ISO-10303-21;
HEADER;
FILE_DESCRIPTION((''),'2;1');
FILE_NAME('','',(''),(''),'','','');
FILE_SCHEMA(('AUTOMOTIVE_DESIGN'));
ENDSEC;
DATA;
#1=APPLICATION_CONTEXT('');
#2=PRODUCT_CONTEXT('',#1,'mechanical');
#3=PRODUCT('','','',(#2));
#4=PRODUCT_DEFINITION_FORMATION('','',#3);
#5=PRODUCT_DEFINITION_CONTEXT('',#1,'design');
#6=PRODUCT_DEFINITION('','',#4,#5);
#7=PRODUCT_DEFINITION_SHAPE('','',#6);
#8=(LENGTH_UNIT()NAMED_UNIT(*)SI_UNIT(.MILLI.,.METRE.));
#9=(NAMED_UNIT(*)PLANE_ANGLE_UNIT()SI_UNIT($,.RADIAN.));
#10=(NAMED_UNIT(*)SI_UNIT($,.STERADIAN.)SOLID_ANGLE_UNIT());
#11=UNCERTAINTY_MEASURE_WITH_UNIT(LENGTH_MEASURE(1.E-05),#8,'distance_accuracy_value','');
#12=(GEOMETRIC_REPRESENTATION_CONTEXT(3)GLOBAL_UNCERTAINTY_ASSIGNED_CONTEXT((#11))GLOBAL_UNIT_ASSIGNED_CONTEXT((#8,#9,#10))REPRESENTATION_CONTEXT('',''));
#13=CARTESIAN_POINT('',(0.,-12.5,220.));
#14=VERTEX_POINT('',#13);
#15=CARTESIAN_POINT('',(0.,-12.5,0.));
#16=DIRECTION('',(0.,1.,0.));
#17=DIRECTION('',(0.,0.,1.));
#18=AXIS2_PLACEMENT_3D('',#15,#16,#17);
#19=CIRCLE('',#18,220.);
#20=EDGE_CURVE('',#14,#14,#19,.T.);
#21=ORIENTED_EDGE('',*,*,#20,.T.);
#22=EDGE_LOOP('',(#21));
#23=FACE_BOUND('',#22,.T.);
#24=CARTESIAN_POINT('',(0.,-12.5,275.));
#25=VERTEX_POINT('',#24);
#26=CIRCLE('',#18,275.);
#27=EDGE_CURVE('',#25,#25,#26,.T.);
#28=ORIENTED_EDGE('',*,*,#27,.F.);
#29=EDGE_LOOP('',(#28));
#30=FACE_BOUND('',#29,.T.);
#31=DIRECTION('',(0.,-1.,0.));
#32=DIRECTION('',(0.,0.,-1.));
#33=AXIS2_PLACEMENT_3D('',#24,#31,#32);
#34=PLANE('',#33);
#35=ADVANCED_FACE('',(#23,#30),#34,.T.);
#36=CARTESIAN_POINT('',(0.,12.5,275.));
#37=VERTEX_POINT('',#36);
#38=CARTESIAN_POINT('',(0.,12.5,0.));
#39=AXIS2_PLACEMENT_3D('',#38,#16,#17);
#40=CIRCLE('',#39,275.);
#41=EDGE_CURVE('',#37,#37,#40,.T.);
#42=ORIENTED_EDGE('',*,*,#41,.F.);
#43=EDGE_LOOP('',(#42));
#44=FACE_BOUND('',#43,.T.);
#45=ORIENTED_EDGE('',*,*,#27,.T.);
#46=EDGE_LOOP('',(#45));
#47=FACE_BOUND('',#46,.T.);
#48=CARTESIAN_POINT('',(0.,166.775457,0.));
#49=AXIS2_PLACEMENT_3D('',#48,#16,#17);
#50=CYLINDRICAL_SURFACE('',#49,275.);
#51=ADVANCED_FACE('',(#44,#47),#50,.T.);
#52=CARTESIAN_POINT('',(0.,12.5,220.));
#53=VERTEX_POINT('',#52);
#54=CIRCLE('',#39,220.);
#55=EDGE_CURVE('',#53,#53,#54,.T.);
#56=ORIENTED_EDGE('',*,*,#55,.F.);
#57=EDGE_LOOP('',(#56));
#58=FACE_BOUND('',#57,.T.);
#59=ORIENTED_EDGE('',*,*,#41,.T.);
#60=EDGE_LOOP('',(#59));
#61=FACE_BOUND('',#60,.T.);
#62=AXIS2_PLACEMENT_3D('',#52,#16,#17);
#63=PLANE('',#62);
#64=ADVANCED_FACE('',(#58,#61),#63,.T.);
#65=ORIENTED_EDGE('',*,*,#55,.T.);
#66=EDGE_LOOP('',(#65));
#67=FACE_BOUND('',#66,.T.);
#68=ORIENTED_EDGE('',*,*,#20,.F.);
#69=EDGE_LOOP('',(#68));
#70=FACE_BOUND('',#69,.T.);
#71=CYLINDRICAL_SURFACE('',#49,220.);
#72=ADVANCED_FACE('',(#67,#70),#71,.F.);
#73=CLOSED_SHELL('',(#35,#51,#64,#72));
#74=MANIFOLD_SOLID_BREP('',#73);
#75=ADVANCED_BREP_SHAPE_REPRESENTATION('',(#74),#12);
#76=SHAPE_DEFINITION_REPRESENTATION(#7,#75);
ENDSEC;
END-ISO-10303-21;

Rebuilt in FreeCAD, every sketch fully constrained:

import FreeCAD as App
import Part
import Sketcher
from FreeCAD import Vector
Q = App.Units.Quantity

doc = App.newDocument("Part")
body = doc.addObject("PartDesign::Body", "Body")

# Sketch on YZ plane
sketch1 = body.newObject("Sketcher::SketchObject", "Sketch")
sketch1.AttachmentSupport = (doc.getObject("YZ_Plane"), [""])
sketch1.MapMode = "FlatFace"
sketch1.addGeometry([
    Part.LineSegment(Vector(12.5, 275, 0), Vector(-12.5, 275, 0)),
    Part.LineSegment(Vector(-12.5, 275, 0), Vector(-12.5, 220, 0)),
    Part.LineSegment(Vector(-12.5, 220, 0), Vector(12.5, 220, 0)),
    Part.LineSegment(Vector(12.5, 220, 0), Vector(12.5, 275, 0)),
], False)
sketch1.addConstraint([
    Sketcher.Constraint("Coincident", 0, 2, 1, 1),
    Sketcher.Constraint("Coincident", 1, 2, 2, 1),
    Sketcher.Constraint("Coincident", 2, 2, 3, 1),
    Sketcher.Constraint("Coincident", 3, 2, 0, 1),
    Sketcher.Constraint("Horizontal", 0),
    Sketcher.Constraint("Vertical", 1),
    Sketcher.Constraint("Horizontal", 2),
    Sketcher.Constraint("Vertical", 3),
    Sketcher.Constraint("DistanceX", 0, 2, 0, 1, Q("25 mm")),
    Sketcher.Constraint("DistanceY", 1, 2, 1, 1, Q("55 mm")),
    Sketcher.Constraint("DistanceY", -1, 1, 0, 2, Q("275 mm")),
    Sketcher.Constraint("DistanceX", 0, 2, -1, 1, Q("12.5 mm")),
])
revolution = body.newObject("PartDesign::Revolution", "Revolution")
revolution.Profile = sketch1
revolution.ReferenceAxis = (sketch1, ["H_Axis"])
revolution.Angle = 360

doc.recompute()
